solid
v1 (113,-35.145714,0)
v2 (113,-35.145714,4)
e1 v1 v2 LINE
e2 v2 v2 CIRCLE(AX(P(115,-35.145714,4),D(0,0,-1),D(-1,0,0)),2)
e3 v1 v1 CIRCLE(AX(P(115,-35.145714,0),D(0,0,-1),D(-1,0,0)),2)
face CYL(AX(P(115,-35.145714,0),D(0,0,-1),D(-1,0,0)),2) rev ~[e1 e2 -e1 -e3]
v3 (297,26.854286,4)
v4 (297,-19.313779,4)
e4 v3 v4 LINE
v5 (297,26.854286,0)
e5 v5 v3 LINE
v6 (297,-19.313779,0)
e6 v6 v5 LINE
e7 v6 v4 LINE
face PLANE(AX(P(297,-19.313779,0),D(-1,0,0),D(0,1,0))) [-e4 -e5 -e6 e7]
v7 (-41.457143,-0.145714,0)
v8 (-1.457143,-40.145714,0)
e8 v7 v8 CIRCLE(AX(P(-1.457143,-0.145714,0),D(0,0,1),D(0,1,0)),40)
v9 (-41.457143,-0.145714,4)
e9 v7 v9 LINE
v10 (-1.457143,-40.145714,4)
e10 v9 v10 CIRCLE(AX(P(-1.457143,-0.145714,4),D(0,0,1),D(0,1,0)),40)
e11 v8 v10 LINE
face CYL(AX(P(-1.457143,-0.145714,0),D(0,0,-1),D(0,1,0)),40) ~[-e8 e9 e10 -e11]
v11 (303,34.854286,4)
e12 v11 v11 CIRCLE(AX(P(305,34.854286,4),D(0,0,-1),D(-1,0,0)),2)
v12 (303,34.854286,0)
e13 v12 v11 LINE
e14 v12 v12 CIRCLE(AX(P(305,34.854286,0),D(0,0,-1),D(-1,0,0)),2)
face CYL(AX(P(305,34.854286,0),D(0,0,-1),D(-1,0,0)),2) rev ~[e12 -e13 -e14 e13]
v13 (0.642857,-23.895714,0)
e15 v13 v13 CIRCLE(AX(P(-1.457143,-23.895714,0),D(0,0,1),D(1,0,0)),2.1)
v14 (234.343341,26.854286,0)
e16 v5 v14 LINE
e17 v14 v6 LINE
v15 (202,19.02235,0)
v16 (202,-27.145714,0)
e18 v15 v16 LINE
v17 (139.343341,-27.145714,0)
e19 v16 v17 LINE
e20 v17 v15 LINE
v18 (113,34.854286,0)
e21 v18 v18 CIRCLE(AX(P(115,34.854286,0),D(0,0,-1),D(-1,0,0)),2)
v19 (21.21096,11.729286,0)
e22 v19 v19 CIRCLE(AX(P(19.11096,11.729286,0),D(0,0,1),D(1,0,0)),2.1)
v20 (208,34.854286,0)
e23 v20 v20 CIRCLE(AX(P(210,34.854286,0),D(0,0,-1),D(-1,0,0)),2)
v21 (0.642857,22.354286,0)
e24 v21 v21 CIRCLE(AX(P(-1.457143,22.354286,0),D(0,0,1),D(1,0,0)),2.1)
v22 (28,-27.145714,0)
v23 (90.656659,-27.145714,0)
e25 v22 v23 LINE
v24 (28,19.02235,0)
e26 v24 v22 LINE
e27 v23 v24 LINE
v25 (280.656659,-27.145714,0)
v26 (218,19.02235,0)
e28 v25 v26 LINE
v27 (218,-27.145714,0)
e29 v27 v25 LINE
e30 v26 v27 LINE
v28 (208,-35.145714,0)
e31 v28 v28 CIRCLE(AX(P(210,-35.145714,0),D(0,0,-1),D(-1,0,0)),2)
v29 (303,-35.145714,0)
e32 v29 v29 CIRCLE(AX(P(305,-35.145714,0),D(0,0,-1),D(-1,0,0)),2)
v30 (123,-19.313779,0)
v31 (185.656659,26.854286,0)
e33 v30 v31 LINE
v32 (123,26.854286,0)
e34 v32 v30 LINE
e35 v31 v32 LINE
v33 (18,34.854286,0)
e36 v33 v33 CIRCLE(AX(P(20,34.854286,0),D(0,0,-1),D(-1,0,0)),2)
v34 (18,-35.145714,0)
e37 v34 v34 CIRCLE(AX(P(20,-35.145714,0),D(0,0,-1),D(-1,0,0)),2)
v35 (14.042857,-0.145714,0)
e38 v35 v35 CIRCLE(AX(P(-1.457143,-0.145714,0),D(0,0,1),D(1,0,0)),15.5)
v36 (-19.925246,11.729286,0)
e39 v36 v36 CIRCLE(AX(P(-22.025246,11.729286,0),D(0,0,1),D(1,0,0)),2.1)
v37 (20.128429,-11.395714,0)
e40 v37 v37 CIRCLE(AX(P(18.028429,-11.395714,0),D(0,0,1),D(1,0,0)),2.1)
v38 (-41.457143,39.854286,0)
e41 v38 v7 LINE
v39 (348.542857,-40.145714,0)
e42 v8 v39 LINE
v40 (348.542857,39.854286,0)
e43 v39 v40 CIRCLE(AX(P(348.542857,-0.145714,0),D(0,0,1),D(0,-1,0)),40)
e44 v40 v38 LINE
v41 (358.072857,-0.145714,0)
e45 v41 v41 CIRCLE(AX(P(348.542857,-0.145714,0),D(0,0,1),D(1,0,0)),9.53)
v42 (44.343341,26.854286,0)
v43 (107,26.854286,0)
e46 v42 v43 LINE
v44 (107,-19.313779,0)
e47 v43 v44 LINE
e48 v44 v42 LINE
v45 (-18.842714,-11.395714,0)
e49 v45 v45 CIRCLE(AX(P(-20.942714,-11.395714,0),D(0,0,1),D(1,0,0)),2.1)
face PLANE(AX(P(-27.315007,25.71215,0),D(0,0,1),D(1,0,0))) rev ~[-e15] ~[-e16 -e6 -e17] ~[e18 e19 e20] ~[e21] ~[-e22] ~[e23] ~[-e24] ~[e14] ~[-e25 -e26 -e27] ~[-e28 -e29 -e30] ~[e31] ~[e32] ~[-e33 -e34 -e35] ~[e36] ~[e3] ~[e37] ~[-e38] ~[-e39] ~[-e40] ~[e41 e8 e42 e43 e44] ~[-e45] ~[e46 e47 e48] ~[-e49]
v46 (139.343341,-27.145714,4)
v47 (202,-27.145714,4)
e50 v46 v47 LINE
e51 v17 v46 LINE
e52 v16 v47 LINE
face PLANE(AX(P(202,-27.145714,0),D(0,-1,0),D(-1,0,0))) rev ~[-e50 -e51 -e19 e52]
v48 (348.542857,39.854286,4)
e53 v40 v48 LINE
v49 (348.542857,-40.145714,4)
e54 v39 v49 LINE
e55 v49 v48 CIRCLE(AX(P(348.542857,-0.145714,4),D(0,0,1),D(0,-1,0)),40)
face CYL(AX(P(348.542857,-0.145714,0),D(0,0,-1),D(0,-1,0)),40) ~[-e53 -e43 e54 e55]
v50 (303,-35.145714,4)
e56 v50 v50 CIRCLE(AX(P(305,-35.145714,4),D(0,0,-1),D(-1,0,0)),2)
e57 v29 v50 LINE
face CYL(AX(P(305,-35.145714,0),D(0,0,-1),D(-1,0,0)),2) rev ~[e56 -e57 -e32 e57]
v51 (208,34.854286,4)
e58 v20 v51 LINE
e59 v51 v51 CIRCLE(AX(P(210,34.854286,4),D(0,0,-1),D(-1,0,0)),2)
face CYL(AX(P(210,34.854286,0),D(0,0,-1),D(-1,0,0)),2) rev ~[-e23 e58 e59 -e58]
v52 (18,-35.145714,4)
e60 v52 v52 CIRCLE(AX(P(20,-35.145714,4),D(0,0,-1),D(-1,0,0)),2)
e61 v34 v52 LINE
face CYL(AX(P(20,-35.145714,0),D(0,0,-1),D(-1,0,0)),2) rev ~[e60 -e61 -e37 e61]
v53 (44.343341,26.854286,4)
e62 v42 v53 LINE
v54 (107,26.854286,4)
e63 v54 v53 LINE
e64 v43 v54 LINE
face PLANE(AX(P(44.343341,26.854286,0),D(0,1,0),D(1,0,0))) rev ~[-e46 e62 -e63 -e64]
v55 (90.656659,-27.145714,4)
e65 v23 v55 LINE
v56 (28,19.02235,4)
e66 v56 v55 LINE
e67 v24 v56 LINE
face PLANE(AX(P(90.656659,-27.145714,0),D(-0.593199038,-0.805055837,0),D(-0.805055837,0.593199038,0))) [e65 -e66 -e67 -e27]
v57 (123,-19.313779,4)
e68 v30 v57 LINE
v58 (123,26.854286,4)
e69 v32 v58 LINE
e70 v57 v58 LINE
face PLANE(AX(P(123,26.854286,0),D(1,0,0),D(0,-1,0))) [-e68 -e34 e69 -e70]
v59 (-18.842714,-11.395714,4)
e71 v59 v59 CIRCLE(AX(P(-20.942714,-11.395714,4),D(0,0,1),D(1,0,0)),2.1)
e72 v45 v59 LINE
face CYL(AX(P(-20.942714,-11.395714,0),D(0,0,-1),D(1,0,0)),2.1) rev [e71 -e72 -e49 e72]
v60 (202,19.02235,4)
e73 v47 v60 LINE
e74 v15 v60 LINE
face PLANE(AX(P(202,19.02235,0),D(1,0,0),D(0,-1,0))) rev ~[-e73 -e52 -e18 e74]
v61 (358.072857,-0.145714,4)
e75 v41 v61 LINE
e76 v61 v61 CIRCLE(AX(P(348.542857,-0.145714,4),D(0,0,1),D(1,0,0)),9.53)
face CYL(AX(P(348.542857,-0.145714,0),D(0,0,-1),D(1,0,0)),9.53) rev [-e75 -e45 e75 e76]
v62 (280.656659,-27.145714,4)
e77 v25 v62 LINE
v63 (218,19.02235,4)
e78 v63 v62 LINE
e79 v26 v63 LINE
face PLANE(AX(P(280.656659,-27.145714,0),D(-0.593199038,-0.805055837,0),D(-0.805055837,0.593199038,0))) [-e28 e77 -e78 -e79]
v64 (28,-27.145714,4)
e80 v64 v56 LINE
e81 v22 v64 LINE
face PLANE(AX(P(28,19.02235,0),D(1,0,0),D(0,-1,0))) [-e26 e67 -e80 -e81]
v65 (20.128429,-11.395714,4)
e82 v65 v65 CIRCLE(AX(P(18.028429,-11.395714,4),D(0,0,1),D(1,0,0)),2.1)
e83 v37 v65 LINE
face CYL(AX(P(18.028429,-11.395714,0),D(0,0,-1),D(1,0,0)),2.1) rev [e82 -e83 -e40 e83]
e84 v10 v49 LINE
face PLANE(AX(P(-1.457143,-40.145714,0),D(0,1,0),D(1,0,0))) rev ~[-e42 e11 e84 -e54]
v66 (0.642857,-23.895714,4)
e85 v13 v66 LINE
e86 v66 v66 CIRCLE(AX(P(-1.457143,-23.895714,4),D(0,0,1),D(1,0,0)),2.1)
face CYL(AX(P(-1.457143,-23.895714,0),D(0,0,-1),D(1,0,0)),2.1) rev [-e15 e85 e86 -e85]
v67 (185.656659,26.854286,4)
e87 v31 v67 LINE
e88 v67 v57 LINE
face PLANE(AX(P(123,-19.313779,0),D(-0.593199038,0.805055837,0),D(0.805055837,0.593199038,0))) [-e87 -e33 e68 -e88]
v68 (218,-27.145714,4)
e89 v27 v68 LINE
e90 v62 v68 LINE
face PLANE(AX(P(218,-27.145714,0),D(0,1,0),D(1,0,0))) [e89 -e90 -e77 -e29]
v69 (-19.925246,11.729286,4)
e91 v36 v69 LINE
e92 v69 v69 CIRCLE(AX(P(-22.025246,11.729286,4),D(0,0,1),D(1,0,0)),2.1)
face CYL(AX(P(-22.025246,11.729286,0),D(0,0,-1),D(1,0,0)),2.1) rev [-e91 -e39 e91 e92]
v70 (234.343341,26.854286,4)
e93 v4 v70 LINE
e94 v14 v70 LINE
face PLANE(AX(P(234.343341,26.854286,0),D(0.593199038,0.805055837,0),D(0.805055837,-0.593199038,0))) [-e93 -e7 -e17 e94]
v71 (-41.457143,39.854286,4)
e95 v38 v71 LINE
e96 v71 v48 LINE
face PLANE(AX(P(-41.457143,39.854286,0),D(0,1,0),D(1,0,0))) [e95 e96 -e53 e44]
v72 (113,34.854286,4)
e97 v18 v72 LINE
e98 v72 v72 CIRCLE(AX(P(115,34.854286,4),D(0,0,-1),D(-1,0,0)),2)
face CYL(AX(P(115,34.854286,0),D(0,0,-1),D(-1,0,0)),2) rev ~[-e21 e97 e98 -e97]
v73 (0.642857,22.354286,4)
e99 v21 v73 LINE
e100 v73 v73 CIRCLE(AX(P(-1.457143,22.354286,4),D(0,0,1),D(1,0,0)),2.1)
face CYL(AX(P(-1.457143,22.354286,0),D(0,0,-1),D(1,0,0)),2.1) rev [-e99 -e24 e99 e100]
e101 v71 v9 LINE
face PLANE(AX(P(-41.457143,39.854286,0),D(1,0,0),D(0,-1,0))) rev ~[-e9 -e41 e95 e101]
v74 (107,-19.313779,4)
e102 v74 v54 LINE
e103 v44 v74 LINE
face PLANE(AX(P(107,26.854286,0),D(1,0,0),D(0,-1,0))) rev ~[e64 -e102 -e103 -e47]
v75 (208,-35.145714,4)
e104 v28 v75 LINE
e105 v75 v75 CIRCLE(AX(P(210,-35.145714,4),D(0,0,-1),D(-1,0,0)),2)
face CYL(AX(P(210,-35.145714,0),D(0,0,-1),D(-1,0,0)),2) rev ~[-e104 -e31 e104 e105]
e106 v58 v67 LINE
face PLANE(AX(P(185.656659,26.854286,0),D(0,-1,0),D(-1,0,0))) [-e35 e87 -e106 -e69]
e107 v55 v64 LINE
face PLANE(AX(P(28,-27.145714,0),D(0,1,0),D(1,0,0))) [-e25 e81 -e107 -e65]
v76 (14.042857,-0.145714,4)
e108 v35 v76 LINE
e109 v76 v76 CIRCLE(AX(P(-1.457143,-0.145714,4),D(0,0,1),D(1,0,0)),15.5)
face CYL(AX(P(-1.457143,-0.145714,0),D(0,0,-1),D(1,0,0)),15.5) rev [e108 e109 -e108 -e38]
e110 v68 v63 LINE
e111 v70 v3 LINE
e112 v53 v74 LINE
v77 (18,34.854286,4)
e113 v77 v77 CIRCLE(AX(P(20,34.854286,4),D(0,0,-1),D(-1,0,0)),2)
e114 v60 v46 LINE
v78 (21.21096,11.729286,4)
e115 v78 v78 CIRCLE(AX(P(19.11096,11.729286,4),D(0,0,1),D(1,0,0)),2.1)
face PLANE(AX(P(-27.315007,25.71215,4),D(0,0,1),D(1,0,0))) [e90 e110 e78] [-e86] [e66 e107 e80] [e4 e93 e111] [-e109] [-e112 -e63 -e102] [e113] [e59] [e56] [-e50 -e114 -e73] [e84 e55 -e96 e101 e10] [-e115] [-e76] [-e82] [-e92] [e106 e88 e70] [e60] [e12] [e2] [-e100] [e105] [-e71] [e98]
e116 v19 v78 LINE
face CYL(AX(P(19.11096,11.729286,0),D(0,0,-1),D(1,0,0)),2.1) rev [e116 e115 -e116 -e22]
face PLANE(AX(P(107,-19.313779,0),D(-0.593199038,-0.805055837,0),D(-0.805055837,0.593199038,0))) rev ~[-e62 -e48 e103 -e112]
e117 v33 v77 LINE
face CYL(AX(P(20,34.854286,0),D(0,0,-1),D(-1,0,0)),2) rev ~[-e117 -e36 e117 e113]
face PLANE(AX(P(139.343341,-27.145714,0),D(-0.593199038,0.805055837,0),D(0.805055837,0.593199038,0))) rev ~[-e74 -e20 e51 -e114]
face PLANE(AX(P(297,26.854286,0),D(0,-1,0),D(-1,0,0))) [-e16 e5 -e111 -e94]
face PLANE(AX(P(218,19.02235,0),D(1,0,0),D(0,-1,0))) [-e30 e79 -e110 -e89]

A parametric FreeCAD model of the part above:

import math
import FreeCAD as App
import Part
import Sketcher
from FreeCAD import Vector
Q = App.Units.Quantity

doc = App.newDocument("Part")
body = doc.addObject("PartDesign::Body", "Body")

sketch1 = doc.addObject("Sketcher::SketchObject", "Sketch")
body.addObject(sketch1)
sketch1.AttachmentSupport = (doc.XY_Plane, [""])
sketch1.MapMode = "FlatFace"
sketch1.addGeometry(Part.ArcOfCircle(Part.Circle(Vector(-1.5, -0.1, 0), Vector(0, 0, 1), 40), math.radians(90), math.radians(270)), False)
sketch1.addGeometry(Part.LineSegment(Vector(-1.5, -40.1, 0), Vector(348.5, -40.1, 0)), False)
sketch1.addGeometry(Part.ArcOfCircle(Part.Circle(Vector(348.5, -0.1, 0), Vector(0, 0, 1), 40), math.radians(-90), math.radians(90)), False)
sketch1.addGeometry(Part.LineSegment(Vector(348.5, 39.9, 0), Vector(-1.5, 39.9, 0)), False)
sketch1.addGeometry(Part.Circle(Vector(-1.5, -23.9, 0), Vector(0, 0, 1), 2.1), False)
sketch1.addGeometry(Part.Circle(Vector(-20.9, -11.4, 0), Vector(0, 0, 1), 2.1), False)
sketch1.addGeometry(Part.Circle(Vector(18, -11.4, 0), Vector(0, 0, 1), 2.1), False)
sketch1.addGeometry(Part.Circle(Vector(-1.5, -0.1, 0), Vector(0, 0, 1), 15.5), False)
sketch1.addGeometry(Part.Circle(Vector(-22, 11.7, 0), Vector(0, 0, 1), 2.1), False)
sketch1.addGeometry(Part.Circle(Vector(19.1, 11.7, 0), Vector(0, 0, 1), 2.1), False)
sketch1.addGeometry(Part.Circle(Vector(-1.5, 22.4, 0), Vector(0, 0, 1), 2.1), False)
sketch1.addGeometry(Part.Circle(Vector(348.5, -0.1, 0), Vector(0, 0, 1), 9.5), False)
sketch1.addConstraint(Sketcher.Constraint("Tangent", 0, 2, 1, 1))
sketch1.addConstraint(Sketcher.Constraint("Tangent", 1, 2, 2, 1))
sketch1.addConstraint(Sketcher.Constraint("Tangent", 2, 2, 3, 1))
sketch1.addConstraint(Sketcher.Constraint("Tangent", 3, 2, 0, 1))
sketch1.addConstraint(Sketcher.Constraint("Horizontal", 1))
sketch1.addConstraint(Sketcher.Constraint("Horizontal", 3))
sketch1.addConstraint(Sketcher.Constraint("Coincident", 7, 3, 0, 3))
sketch1.addConstraint(Sketcher.Constraint("Coincident", 11, 3, 2, 3))
sketch1.addConstraint(Sketcher.Constraint("Equal", 4, 5))
sketch1.addConstraint(Sketcher.Constraint("Equal", 5, 6))
sketch1.addConstraint(Sketcher.Constraint("Equal", 6, 8))
sketch1.addConstraint(Sketcher.Constraint("Equal", 8, 9))
sketch1.addConstraint(Sketcher.Constraint("Equal", 9, 10))
sketch1.addConstraint(Sketcher.Constraint("Horizontal", 5, 3, 6, 3))
sketch1.addConstraint(Sketcher.Constraint("Horizontal", 8, 3, 9, 3))
sketch1.addConstraint(Sketcher.Constraint("Vertical", 0, 3, 4, 3))
sketch1.addConstraint(Sketcher.Constraint("Vertical", 7, 3, 10, 3))
sketch1.addConstraint(Sketcher.Constraint("Diameter", 7, Q("31 mm")))
sketch1.addConstraint(Sketcher.Constraint("Radius", 0, Q("40 mm")))
sketch1.addConstraint(Sketcher.Constraint("Diameter", 4, Q("4.2 mm")))
sketch1.addConstraint(Sketcher.Constraint("Diameter", 11, Q("19.06 mm")))
sketch1.addConstraint(Sketcher.Constraint("DistanceX", 1, 1, 1, 2, Q("350 mm")))
sketch1.addConstraint(Sketcher.Constraint("DistanceY", 4, 3, 5, 3, Q("12.5 mm")))
sketch1.addConstraint(Sketcher.Constraint("DistanceY", 0, 3, 10, 3, Q("22.5 mm")))
sketch1.addConstraint(Sketcher.Constraint("DistanceY", 4, 3, 0, 3, Q("23.75 mm")))
sketch1.addConstraint(Sketcher.Constraint("DistanceY", 5, 3, 8, 3, Q("23.125 mm")))
sketch1.addConstraint(Sketcher.Constraint("DistanceX", -1, 1, 6, 3, Q("18.028429 mm")))
sketch1.addConstraint(Sketcher.Constraint("DistanceX", -1, 1, 9, 3, Q("19.11096 mm")))
sketch1.addConstraint(Sketcher.Constraint("DistanceX", 5, 3, 0, 3, Q("19.485572 mm")))
sketch1.addConstraint(Sketcher.Constraint("DistanceX", 0, 3, 6, 3, Q("19.485572 mm")))
sketch1.addConstraint(Sketcher.Constraint("DistanceX", 8, 3, 5, 3, Q("1.082532 mm")))
sketch1.addConstraint(Sketcher.Constraint("DistanceY", 0, 3, -1, 1, Q("0.145714 mm")))
pad1 = doc.addObject("PartDesign::Pad", "Pad")
body.addObject(pad1)
pad1.Profile = sketch1
pad1.Length = 4

sketch2 = doc.addObject("Sketcher::SketchObject", "Sketch001")
body.addObject(sketch2)
sketch2.AttachmentSupport = (doc.XY_Plane, [""])
sketch2.MapMode = "FlatFace"
sketch2.addGeometry(Part.Circle(Vector(20, -35.1, 0), Vector(0, 0, 1), 2), False)
sketch2.addGeometry(Part.Circle(Vector(115, -35.1, 0), Vector(0, 0, 1), 2), False)
sketch2.addGeometry(Part.Circle(Vector(210, -35.1, 0), Vector(0, 0, 1), 2), False)
sketch2.addGeometry(Part.Circle(Vector(305, -35.1, 0), Vector(0, 0, 1), 2), False)
sketch2.addGeometry(Part.Circle(Vector(305, 34.9, 0), Vector(0, 0, 1), 2), False)
sketch2.addGeometry(Part.Circle(Vector(210, 34.9, 0), Vector(0, 0, 1), 2), False)
sketch2.addGeometry(Part.Circle(Vector(115, 34.9, 0), Vector(0, 0, 1), 2), False)
sketch2.addGeometry(Part.Circle(Vector(20, 34.9, 0), Vector(0, 0, 1), 2), False)
sketch2.addGeometry(Part.LineSegment(Vector(280.7, -27.1, 0), Vector(218, -27.1, 0)), False)
sketch2.addGeometry(Part.LineSegment(Vector(218, -27.1, 0), Vector(218, 19, 0)), False)
sketch2.addGeometry(Part.LineSegment(Vector(218, 19, 0), Vector(280.7, -27.1, 0)), False)
sketch2.addGeometry(Part.LineSegment(Vector(297, -19.3, 0), Vector(234.3, 26.9, 0)), False)
sketch2.addGeometry(Part.LineSegment(Vector(234.3, 26.9, 0), Vector(297, 26.9, 0)), False)
sketch2.addGeometry(Part.LineSegment(Vector(297, 26.9, 0), Vector(297, -19.3, 0)), False)
sketch2.addGeometry(Part.LineSegment(Vector(123, -19.3, 0), Vector(123, 26.9, 0)), False)
sketch2.addGeometry(Part.LineSegment(Vector(123, 26.9, 0), Vector(185.7, 26.9, 0)), False)
sketch2.addGeometry(Part.LineSegment(Vector(185.7, 26.9, 0), Vector(123, -19.3, 0)), False)
sketch2.addGeometry(Part.LineSegment(Vector(202, -27.1, 0), Vector(139.3, -27.1, 0)), False)
sketch2.addGeometry(Part.LineSegment(Vector(139.3, -27.1, 0), Vector(202, 19, 0)), False)
sketch2.addGeometry(Part.LineSegment(Vector(202, 19, 0), Vector(202, -27.1, 0)), False)
sketch2.addGeometry(Part.LineSegment(Vector(28, 19, 0), Vector(90.7, -27.1, 0)), False)
sketch2.addGeometry(Part.LineSegment(Vector(90.7, -27.1, 0), Vector(28, -27.1, 0)), False)
sketch2.addGeometry(Part.LineSegment(Vector(28, -27.1, 0), Vector(28, 19, 0)), False)
sketch2.addGeometry(Part.LineSegment(Vector(107, -19.3, 0), Vector(44.3, 26.9, 0)), False)
sketch2.addGeometry(Part.LineSegment(Vector(44.3, 26.9, 0), Vector(107, 26.9, 0)), False)
sketch2.addGeometry(Part.LineSegment(Vector(107, 26.9, 0), Vector(107, -19.3, 0)), False)
sketch2.addConstraint(Sketcher.Constraint("Coincident", 8, 2, 9, 1))
sketch2.addConstraint(Sketcher.Constraint("Coincident", 9, 2, 10, 1))
sketch2.addConstraint(Sketcher.Constraint("Coincident", 10, 2, 8, 1))
sketch2.addConstraint(Sketcher.Constraint("Coincident", 11, 2, 12, 1))
sketch2.addConstraint(Sketcher.Constraint("Coincident", 12, 2, 13, 1))
sketch2.addConstraint(Sketcher.Constraint("Coincident", 13, 2, 11, 1))
sketch2.addConstraint(Sketcher.Constraint("Coincident", 14, 2, 15, 1))
sketch2.addConstraint(Sketcher.Constraint("Coincident", 15, 2, 16, 1))
sketch2.addConstraint(Sketcher.Constraint("Coincident", 16, 2, 14, 1))
sketch2.addConstraint(Sketcher.Constraint("Coincident", 17, 2, 18, 1))
sketch2.addConstraint(Sketcher.Constraint("Coincident", 18, 2, 19, 1))
sketch2.addConstraint(Sketcher.Constraint("Coincident", 19, 2, 17, 1))
sketch2.addConstraint(Sketcher.Constraint("Coincident", 20, 2, 21, 1))
sketch2.addConstraint(Sketcher.Constraint("Coincident", 21, 2, 22, 1))
sketch2.addConstraint(Sketcher.Constraint("Coincident", 22, 2, 20, 1))
sketch2.addConstraint(Sketcher.Constraint("Coincident", 23, 2, 24, 1))
sketch2.addConstraint(Sketcher.Constraint("Coincident", 24, 2, 25, 1))
sketch2.addConstraint(Sketcher.Constraint("Coincident", 25, 2, 23, 1))
sketch2.addConstraint(Sketcher.Constraint("Horizontal", 8))
sketch2.addConstraint(Sketcher.Constraint("Vertical", 9))
sketch2.addConstraint(Sketcher.Constraint("Horizontal", 12))
sketch2.addConstraint(Sketcher.Constraint("Vertical", 13))
sketch2.addConstraint(Sketcher.Constraint("Vertical", 14))
sketch2.addConstraint(Sketcher.Constraint("Horizontal", 15))
sketch2.addConstraint(Sketcher.Constraint("Horizontal", 17))
sketch2.addConstraint(Sketcher.Constraint("Vertical", 19))
sketch2.addConstraint(Sketcher.Constraint("Horizontal", 21))
sketch2.addConstraint(Sketcher.Constraint("Vertical", 22))
sketch2.addConstraint(Sketcher.Constraint("Horizontal", 24))
sketch2.addConstraint(Sketcher.Constraint("Vertical", 25))
sketch2.addConstraint(Sketcher.Constraint("Equal", 0, 1))
sketch2.addConstraint(Sketcher.Constraint("Equal", 1, 2))
sketch2.addConstraint(Sketcher.Constraint("Equal", 2, 3))
sketch2.addConstraint(Sketcher.Constraint("Equal", 3, 4))
sketch2.addConstraint(Sketcher.Constraint("Equal", 4, 5))
sketch2.addConstraint(Sketcher.Constraint("Equal", 5, 6))
sketch2.addConstraint(Sketcher.Constraint("Equal", 6, 7))
sketch2.addConstraint(Sketcher.Constraint("Parallel", 10, 11))
sketch2.addConstraint(Sketcher.Constraint("Parallel", 16, 18))
sketch2.addConstraint(Sketcher.Constraint("Parallel", 11, 20))
sketch2.addConstraint(Sketcher.Constraint("Parallel", 20, 23))
sketch2.addConstraint(Sketcher.Constraint("Horizontal", 0, 3, 1, 3))
sketch2.addConstraint(Sketcher.Constraint("Horizontal", 1, 3, 2, 3))
sketch2.addConstraint(Sketcher.Constraint("Horizontal", 2, 3, 3, 3))
sketch2.addConstraint(Sketcher.Constraint("Horizontal", 4, 3, 5, 3))
sketch2.addConstraint(Sketcher.Constraint("Horizontal", 5, 3, 6, 3))
sketch2.addConstraint(Sketcher.Constraint("Horizontal", 6, 3, 7, 3))
sketch2.addConstraint(Sketcher.Constraint("Horizontal", 12, 2, 14, 2))
sketch2.addConstraint(Sketcher.Constraint("Horizontal", 13, 2, 16, 2))
sketch2.addConstraint(Sketcher.Constraint("Horizontal", 10, 2, 17, 2))
sketch2.addConstraint(Sketcher.Constraint("Horizontal", 9, 2, 18, 2))
sketch2.addConstraint(Sketcher.Constraint("Horizontal", 19, 2, 20, 2))
sketch2.addConstraint(Sketcher.Constraint("Horizontal", 18, 2, 22, 2))
sketch2.addConstraint(Sketcher.Constraint("Horizontal", 15, 2, 23, 2))
sketch2.addConstraint(Sketcher.Constraint("Horizontal", 16, 2, 25, 2))
sketch2.addConstraint(Sketcher.Constraint("Vertical", 3, 3, 4, 3))
sketch2.addConstraint(Sketcher.Constraint("Vertical", 2, 3, 5, 3))
sketch2.addConstraint(Sketcher.Constraint("Vertical", 1, 3, 6, 3))
sketch2.addConstraint(Sketcher.Constraint("Vertical", 0, 3, 7, 3))
sketch2.addConstraint(Sketcher.Constraint("Equal", 8, 12))
sketch2.addConstraint(Sketcher.Constraint("Equal", 12, 15))
sketch2.addConstraint(Sketcher.Constraint("Diameter", 0, Q("4 mm")))
sketch2.addConstraint(Sketcher.Constraint("DistanceX", -1, 1, 0, 3, Q("20 mm")))
sketch2.addConstraint(Sketcher.Constraint("DistanceX", -1, 1, 1, 3, Q("115 mm")))
sketch2.addConstraint(Sketcher.Constraint("DistanceX", -1, 1, 2, 3, Q("210 mm")))
sketch2.addConstraint(Sketcher.Constraint("DistanceX", -1, 1, 3, 3, Q("305 mm")))
sketch2.addConstraint(Sketcher.Constraint("DistanceX", -1, 1, 8, 2, Q("218 mm")))
sketch2.addConstraint(Sketcher.Constraint("DistanceX", -1, 1, 12, 2, Q("297 mm")))
sketch2.addConstraint(Sketcher.Constraint("DistanceX", -1, 1, 14, 2, Q("123 mm")))
sketch2.addConstraint(Sketcher.Constraint("DistanceX", -1, 1, 18, 2, Q("202 mm")))
sketch2.addConstraint(Sketcher.Constraint("DistanceX", -1, 1, 21, 2, Q("28 mm")))
sketch2.addConstraint(Sketcher.Constraint("DistanceX", -1, 1, 24, 2, Q("107 mm")))
sketch2.addConstraint(Sketcher.Constraint("DistanceY", 3, 3, 4, 3, Q("70 mm")))
sketch2.addConstraint(Sketcher.Constraint("DistanceY", 2, 3, 8, 2, Q("8 mm")))
sketch2.addConstraint(Sketcher.Constraint("DistanceY", 11, 2, 5, 3, Q("8 mm")))
sketch2.addConstraint(Sketcher.Constraint("DistanceX", 8, 2, 8, 1, Q("62.656659 mm")))
sketch2.addConstraint(Sketcher.Constraint("Distance", 10, Q("77.82896 mm")))
sketch2.addConstraint(Sketcher.Constraint("DistanceY", -1, 1, 9, 2, Q("19.02235 mm")))
pocket1 = doc.addObject("PartDesign::Pocket", "Pocket")
body.addObject(pocket1)
pocket1.Profile = sketch2
pocket1.Length = 10
pocket1.Reversed = True

sketch3 = doc.addObject("Sketcher::SketchObject", "Sketch002")
body.addObject(sketch3)
sketch3.AttachmentSupport = (doc.XY_Plane, [""])
sketch3.MapMode = "FlatFace"
sketch3.addGeometry(Part.LineSegment(Vector(-41, 40, 0), Vector(-1, 40, 0)), False)
sketch3.addGeometry(Part.LineSegment(Vector(-1, 40, 0), Vector(-41, 0, 0)), False)
sketch3.addGeometry(Part.LineSegment(Vector(-41, 0, 0), Vector(-41, 40, 0)), False)
sketch3.addConstraint(Sketcher.Constraint("Coincident", 0, 2, 1, 1))
sketch3.addConstraint(Sketcher.Constraint("Coincident", 1, 2, 2, 1))
sketch3.addConstraint(Sketcher.Constraint("Coincident", 2, 2, 0, 1))
sketch3.addConstraint(Sketcher.Constraint("Horizontal", 0))
sketch3.addConstraint(Sketcher.Constraint("Vertical", 2))
sketch3.addConstraint(Sketcher.Constraint("Equal", 0, 2))
sketch3.addConstraint(Sketcher.Constraint("DistanceX", 0, 1, 0, 2, Q("40 mm")))
sketch3.addConstraint(Sketcher.Constraint("DistanceX", 0, 2, -1, 1, Q("1.457143 mm")))
sketch3.addConstraint(Sketcher.Constraint("DistanceY", -1, 1, 0, 2, Q("39.854286 mm")))
pad2 = doc.addObject("PartDesign::Pad", "Pad001")
body.addObject(pad2)
pad2.Profile = sketch3
pad2.Length = 4

doc.recompute()
